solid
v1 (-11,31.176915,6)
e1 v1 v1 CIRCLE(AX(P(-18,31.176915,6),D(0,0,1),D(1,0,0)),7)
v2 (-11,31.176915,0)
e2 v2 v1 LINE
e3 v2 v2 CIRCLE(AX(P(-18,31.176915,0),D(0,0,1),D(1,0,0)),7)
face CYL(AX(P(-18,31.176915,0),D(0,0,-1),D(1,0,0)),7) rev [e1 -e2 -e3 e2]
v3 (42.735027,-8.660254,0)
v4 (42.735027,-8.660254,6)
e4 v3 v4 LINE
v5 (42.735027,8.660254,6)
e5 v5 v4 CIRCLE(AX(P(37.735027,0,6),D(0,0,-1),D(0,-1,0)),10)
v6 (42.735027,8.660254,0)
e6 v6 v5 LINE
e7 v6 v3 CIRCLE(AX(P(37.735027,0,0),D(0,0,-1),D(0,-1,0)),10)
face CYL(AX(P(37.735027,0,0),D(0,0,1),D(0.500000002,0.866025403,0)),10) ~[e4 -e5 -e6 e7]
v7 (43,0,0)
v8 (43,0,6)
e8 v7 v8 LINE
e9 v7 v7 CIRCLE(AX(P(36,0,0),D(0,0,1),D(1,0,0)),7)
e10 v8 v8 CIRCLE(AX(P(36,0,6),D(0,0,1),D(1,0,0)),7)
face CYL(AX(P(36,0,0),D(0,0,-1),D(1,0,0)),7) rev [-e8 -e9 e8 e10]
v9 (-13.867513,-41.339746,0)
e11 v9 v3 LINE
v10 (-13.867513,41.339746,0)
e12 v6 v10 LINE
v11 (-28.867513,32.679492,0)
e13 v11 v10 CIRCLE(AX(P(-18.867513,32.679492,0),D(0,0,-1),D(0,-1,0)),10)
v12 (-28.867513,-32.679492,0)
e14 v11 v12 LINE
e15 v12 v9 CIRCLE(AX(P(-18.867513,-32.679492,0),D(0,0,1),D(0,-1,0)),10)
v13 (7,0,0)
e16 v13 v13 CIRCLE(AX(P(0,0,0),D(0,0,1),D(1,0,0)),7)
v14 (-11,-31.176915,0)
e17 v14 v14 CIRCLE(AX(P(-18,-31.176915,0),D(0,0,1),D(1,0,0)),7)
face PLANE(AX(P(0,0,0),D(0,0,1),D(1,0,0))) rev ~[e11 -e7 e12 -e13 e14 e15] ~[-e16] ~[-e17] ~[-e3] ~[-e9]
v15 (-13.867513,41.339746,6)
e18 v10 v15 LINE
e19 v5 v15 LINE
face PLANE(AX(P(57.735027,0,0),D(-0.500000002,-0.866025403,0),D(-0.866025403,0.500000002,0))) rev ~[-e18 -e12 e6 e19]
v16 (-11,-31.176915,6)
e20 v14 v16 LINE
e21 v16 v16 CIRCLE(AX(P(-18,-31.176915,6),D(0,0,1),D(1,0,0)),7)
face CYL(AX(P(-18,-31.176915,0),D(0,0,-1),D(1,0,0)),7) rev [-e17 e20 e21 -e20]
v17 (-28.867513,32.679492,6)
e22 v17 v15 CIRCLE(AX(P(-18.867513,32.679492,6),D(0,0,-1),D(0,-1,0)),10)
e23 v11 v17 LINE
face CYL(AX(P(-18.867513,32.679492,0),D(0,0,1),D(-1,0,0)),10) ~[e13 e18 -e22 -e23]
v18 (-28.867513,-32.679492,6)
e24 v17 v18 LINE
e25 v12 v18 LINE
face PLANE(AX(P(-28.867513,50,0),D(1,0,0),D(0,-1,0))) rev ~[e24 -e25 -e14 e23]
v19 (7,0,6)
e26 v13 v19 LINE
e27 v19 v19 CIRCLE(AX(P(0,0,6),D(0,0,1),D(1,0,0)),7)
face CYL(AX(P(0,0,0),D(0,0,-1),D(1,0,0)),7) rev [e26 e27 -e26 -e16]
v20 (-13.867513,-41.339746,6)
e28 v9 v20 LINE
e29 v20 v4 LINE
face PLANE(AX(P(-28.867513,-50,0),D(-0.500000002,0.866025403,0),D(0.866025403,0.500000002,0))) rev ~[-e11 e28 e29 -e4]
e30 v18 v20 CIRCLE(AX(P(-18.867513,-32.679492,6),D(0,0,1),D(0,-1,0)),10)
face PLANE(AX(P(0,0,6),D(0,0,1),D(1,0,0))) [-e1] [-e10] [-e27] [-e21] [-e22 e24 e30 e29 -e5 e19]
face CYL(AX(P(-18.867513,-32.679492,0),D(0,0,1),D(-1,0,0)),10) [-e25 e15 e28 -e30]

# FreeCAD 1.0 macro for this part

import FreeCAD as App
import Part
import Sketcher
from FreeCAD import Vector
Q = App.Units.Quantity


def edges_at(feature, points):
    """Names of the edges that pass closest to the given points."""
    edges = feature.Shape.Edges
    near = lambda p: min(range(len(edges)), key=lambda i: edges[i].distToShape(Part.Vertex(*p))[0])
    return sorted({f"Edge{near(p) + 1}" for p in points})


def add_polygon(sketch, points):
    """Adds a closed chain of lines whose ends are joined by coincident constraints."""
    first, n = sketch.GeometryCount, len(points)
    for a, b in zip(points, points[1:] + points[:1]):
        sketch.addGeometry(Part.LineSegment(App.Vector(*a, 0), App.Vector(*b, 0)), False)
    for i in range(n):
        sketch.addConstraint(Sketcher.Constraint("Coincident", first + i, 2, first + (i + 1) % n, 1))

doc = App.newDocument("Part")
body = doc.addObject("PartDesign::Body", "Body")

# Sketch on XY plane
sketch1 = body.newObject("Sketcher::SketchObject", "Sketch")
sketch1.AttachmentSupport = (doc.getObject("XY_Plane"), [""])
sketch1.MapMode = "FlatFace"
add_polygon(sketch1, [(-29, 50), (-29, -50), (58, 0)])  # lines 0-2
sketch1.addGeometry(Part.Circle(Vector(-18, -31, 0), Vector(0, 0, 1), 7), False)  # 3
sketch1.addGeometry(Part.Circle(Vector(0, 0, 0), Vector(0, 0, 1), 7), False)  # 4
sketch1.addGeometry(Part.Circle(Vector(-18, 31, 0), Vector(0, 0, 1), 7), False)  # 5
sketch1.addGeometry(Part.Circle(Vector(36, 0, 0), Vector(0, 0, 1), 7), False)  # 6
sketch1.addConstraint([
    Sketcher.Constraint("Vertical", 0),
    Sketcher.Constraint("Coincident", 4, 3, -1, 1),
    Sketcher.Constraint("Equal", 3, 4),
    Sketcher.Constraint("Equal", 4, 5),
    Sketcher.Constraint("Equal", 5, 6),
    Sketcher.Constraint("Symmetric", 3, 3, 5, 3, -1),
    Sketcher.Constraint("PointOnObject", 6, 3, -1),
    Sketcher.Constraint("PointOnObject", 1, 2, -1),
    Sketcher.Constraint("Equal", 1, 2),
    Sketcher.Constraint("Diameter", 3, 14.0),
    Sketcher.Constraint("DistanceY", 0, 2, 0, 1, 100.0),
    Sketcher.Constraint("Angle", 1, Q("30 deg")),
    Sketcher.Constraint("DistanceX", 3, 3, -1, 1, 18.0),
    Sketcher.Constraint("DistanceX", -1, 1, 6, 3, 36.0),
    Sketcher.Constraint("DistanceY", 3, 3, 5, 3, 62.35383),
    Sketcher.Constraint("DistanceX", 0, 2, -1, 1, 28.867513),
])
pad1 = body.newObject("PartDesign::Pad", "Pad")
pad1.Profile = sketch1
pad1.Length = 6
doc.recompute()

fillet = body.newObject("PartDesign::Fillet", "Fillet")
fillet.Base = (pad1, edges_at(pad1, [(-28.868, -50, 3), (57.735, 0, 3), (-28.868, 50, 3)]))
fillet.Radius = 10

doc.recompute()
